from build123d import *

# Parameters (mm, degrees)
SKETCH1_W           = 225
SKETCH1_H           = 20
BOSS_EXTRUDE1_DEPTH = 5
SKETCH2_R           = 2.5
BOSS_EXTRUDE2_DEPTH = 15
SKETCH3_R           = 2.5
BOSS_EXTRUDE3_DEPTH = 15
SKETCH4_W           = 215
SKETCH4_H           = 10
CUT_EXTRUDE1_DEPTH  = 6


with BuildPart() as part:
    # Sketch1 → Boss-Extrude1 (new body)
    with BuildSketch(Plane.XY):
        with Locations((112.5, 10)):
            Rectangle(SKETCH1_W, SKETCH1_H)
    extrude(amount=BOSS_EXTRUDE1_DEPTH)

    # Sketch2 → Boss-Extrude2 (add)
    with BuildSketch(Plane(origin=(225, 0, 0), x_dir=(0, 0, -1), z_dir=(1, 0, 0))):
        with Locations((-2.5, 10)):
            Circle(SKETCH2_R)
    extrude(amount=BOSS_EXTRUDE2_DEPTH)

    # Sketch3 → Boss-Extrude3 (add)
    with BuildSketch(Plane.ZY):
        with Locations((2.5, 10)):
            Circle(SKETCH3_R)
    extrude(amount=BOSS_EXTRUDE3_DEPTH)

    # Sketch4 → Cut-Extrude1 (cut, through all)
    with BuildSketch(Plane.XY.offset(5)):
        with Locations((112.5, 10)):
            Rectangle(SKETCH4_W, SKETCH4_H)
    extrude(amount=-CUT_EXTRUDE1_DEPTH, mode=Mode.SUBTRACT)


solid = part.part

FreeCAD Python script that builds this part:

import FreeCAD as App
import Part
import Sketcher

V = App.Vector
Q = App.Units.Quantity


def add_polygon(sketch, points):
    """Adds a closed chain of lines whose ends are joined by coincident constraints."""
    first, n = sketch.GeometryCount, len(points)
    for a, b in zip(points, points[1:] + points[:1]):
        sketch.addGeometry(Part.LineSegment(App.Vector(*a, 0), App.Vector(*b, 0)), False)
    for i in range(n):
        sketch.addConstraint(Sketcher.Constraint("Coincident", first + i, 2, first + (i + 1) % n, 1))

doc = App.newDocument("Part")
body = doc.addObject("PartDesign::Body", "Body")

# Sketch on XY plane
sketch1 = body.newObject("Sketcher::SketchObject", "Sketch")
sketch1.AttachmentSupport = (doc.getObject("XY_Plane"), [""])
sketch1.MapMode = "FlatFace"
add_polygon(sketch1, [(0, 20), (0, 0), (225, 0), (225, 20)])  # lines 0-3
sketch1.addConstraint(Sketcher.Constraint("Vertical", 0))
sketch1.addConstraint(Sketcher.Constraint("Horizontal", 1))
sketch1.addConstraint(Sketcher.Constraint("Vertical", 2))
sketch1.addConstraint(Sketcher.Constraint("Horizontal", 3))
sketch1.addConstraint(Sketcher.Constraint("Coincident", 0, 2, -1, 1))
sketch1.addConstraint(Sketcher.Constraint("DistanceX", 1, 1, 1, 2, Q("225 mm")))
sketch1.addConstraint(Sketcher.Constraint("DistanceY", 0, 2, 0, 1, Q("20 mm")))
pad1 = body.newObject("PartDesign::Pad", "Pad")
pad1.Profile = sketch1
pad1.Length = 5

# Sketch on YZ plane
sketch2 = body.newObject("Sketcher::SketchObject", "Sketch001")
sketch2.AttachmentSupport = (doc.getObject("YZ_Plane"), [""])
sketch2.MapMode = "FlatFace"
sketch2.AttachmentOffset = App.Placement(V(0, 0, 225), App.Rotation())
sketch2.addGeometry(Part.Circle(V(10, 2.5, 0), V(0, 0, 1), 2.5), False)
sketch2.addConstraint(Sketcher.Constraint("Diameter", 0, Q("5 mm")))
sketch2.addConstraint(Sketcher.Constraint("DistanceX", -1, 1, 0, 3, Q("10 mm")))
sketch2.addConstraint(Sketcher.Constraint("DistanceY", -1, 1, 0, 3, Q("2.5 mm")))
pad2 = body.newObject("PartDesign::Pad", "Pad001")
pad2.Profile = sketch2
pad2.Length = 15

# Sketch on YZ plane
sketch3 = body.newObject("Sketcher::SketchObject", "Sketch002")
sketch3.AttachmentSupport = (doc.getObject("YZ_Plane"), [""])
sketch3.MapMode = "FlatFace"
sketch3.addGeometry(Part.Circle(V(10, 2.5, 0), V(0, 0, 1), 2.5), False)
sketch3.addConstraint(Sketcher.Constraint("Diameter", 0, Q("5 mm")))
sketch3.addConstraint(Sketcher.Constraint("DistanceX", -1, 1, 0, 3, Q("10 mm")))
sketch3.addConstraint(Sketcher.Constraint("DistanceY", -1, 1, 0, 3, Q("2.5 mm")))
pad3 = body.newObject("PartDesign::Pad", "Pad002")
pad3.Profile = sketch3
pad3.Length = 15
pad3.Reversed = True

# Sketch on XY plane
sketch4 = body.newObject("Sketcher::SketchObject", "Sketch003")
sketch4.AttachmentSupport = (doc.getObject("XY_Plane"), [""])
sketch4.MapMode = "FlatFace"
sketch4.AttachmentOffset = App.Placement(V(0, 0, 5), App.Rotation())
add_polygon(sketch4, [(5, 15), (5, 5), (220, 5), (220, 15)])  # lines 0-3
sketch4.addConstraint(Sketcher.Constraint("Vertical", 0))
sketch4.addConstraint(Sketcher.Constraint("Horizontal", 1))
sketch4.addConstraint(Sketcher.Constraint("Vertical", 2))
sketch4.addConstraint(Sketcher.Constraint("Horizontal", 3))
sketch4.addConstraint(Sketcher.Constraint("DistanceX", 1, 1, 1, 2, Q("215 mm")))
sketch4.addConstraint(Sketcher.Constraint("DistanceY", 0, 2, 0, 1, Q("10 mm")))
sketch4.addConstraint(Sketcher.Constraint("DistanceX", -1, 1, 0, 2, Q("5 mm")))
sketch4.addConstraint(Sketcher.Constraint("DistanceY", -1, 1, 0, 2, Q("5 mm")))
pocket1 = body.newObject("PartDesign::Pocket", "Pocket")
pocket1.Profile = sketch4
pocket1.Type = "ThroughAll"

doc.recompute()
